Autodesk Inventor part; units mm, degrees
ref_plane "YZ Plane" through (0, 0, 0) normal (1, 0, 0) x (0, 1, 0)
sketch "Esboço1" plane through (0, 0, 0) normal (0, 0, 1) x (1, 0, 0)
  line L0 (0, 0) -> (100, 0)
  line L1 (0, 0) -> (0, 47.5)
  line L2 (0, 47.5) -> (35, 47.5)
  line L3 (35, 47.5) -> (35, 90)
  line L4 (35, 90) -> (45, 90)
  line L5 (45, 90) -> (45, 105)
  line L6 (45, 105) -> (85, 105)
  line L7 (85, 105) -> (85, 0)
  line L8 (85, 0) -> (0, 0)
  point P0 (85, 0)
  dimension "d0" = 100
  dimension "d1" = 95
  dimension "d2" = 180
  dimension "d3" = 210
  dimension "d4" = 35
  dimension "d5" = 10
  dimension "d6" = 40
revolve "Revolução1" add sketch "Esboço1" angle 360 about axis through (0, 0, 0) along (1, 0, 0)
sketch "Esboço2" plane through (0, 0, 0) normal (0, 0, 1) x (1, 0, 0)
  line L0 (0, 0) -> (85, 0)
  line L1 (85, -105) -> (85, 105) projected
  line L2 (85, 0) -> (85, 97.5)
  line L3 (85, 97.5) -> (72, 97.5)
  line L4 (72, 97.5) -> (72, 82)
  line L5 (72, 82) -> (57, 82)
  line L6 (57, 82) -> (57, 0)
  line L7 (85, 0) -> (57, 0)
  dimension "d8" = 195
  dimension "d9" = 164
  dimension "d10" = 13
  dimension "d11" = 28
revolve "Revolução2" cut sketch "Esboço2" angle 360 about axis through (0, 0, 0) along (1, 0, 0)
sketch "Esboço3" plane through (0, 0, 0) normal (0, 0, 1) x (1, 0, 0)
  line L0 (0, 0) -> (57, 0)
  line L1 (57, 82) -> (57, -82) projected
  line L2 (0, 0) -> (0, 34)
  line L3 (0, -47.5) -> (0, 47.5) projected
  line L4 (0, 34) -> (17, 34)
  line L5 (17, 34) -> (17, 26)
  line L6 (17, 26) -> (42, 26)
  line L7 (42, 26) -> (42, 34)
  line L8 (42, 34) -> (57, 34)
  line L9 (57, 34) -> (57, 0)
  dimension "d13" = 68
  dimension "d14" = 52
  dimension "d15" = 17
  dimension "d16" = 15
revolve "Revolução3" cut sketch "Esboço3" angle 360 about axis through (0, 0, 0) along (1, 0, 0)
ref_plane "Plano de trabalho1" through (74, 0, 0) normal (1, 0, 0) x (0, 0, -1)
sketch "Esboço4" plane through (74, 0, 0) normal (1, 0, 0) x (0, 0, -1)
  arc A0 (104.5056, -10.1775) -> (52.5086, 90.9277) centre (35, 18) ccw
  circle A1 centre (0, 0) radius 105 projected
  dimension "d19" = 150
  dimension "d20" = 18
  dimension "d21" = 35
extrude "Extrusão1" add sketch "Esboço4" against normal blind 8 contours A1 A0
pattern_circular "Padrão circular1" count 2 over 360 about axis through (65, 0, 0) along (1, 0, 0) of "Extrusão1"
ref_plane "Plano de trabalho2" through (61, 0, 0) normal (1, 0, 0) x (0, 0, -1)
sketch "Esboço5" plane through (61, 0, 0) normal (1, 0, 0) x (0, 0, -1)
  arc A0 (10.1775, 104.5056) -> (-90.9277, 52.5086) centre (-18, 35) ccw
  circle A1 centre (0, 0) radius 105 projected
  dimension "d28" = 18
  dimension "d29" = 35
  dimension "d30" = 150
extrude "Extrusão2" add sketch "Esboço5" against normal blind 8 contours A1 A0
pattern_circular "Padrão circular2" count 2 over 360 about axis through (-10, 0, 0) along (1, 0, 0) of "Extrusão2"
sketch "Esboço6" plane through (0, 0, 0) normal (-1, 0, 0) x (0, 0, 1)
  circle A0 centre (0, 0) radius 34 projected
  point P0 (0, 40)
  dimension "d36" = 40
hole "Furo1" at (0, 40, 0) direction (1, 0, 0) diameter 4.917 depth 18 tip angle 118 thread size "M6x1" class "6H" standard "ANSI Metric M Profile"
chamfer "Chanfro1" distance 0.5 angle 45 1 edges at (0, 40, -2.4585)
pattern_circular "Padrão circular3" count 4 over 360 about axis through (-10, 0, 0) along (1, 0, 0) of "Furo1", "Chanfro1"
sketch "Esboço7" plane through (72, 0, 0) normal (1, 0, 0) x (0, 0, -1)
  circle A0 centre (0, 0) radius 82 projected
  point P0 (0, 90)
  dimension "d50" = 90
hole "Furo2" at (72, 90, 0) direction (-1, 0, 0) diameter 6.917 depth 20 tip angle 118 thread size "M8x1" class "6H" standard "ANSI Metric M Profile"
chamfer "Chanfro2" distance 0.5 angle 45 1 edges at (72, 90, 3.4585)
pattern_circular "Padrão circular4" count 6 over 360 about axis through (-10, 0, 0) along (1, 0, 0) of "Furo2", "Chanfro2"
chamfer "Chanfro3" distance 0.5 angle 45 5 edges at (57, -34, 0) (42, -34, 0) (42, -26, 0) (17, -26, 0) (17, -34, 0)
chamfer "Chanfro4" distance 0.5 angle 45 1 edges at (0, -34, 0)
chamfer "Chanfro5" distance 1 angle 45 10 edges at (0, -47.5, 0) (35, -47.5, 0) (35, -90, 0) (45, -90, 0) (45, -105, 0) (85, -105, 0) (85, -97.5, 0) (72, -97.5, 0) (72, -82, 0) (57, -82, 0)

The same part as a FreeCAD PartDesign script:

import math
import FreeCAD as App
import Part
import Sketcher


def edges_at(feature, points):
    """Names of the edges that pass closest to the given points."""
    edges = feature.Shape.Edges
    near = lambda p: min(range(len(edges)), key=lambda i: edges[i].distToShape(Part.Vertex(*p))[0])
    return sorted({f"Edge{near(p) + 1}" for p in points})


def add_polygon(sketch, points):
    """Adds a closed chain of lines whose ends are joined by coincident constraints."""
    first, n = sketch.GeometryCount, len(points)
    for a, b in zip(points, points[1:] + points[:1]):
        sketch.addGeometry(Part.LineSegment(App.Vector(*a, 0), App.Vector(*b, 0)), False)
    for i in range(n):
        sketch.addConstraint(Sketcher.Constraint("Coincident", first + i, 2, first + (i + 1) % n, 1))

doc = App.newDocument("Part")
body = doc.addObject("PartDesign::Body", "Body")

# Sketch on XY plane
sketch1 = doc.addObject("Sketcher::SketchObject", "Sketch")
body.addObject(sketch1)
sketch1.AttachmentSupport = (doc.XY_Plane, [""])
sketch1.MapMode = "FlatFace"
add_polygon(sketch1, [(0, 48), (0, 0), (85, 0), (85, 105), (45, 105), (45, 90), (35, 90), (35, 48)])  # lines 0-7
sketch1.addConstraint([
    Sketcher.Constraint("Vertical", 0),
    Sketcher.Constraint("Horizontal", 1),
    Sketcher.Constraint("Vertical", 2),
    Sketcher.Constraint("Horizontal", 3),
    Sketcher.Constraint("Vertical", 4),
    Sketcher.Constraint("Horizontal", 5),
    Sketcher.Constraint("Vertical", 6),
    Sketcher.Constraint("Horizontal", 7),
    Sketcher.Constraint("Coincident", 0, 2, -1, 1),
    Sketcher.Constraint("DistanceX", 3, 2, 3, 1, 40.0),
    Sketcher.Constraint("DistanceX", 5, 2, 5, 1, 10.0),
    Sketcher.Constraint("DistanceX", 7, 2, 7, 1, 35.0),
    Sketcher.Constraint("DistanceY", 2, 1, 2, 2, 105.0),
    Sketcher.Constraint("DistanceY", 4, 2, 4, 1, 15.0),
    Sketcher.Constraint("DistanceY", 0, 2, 0, 1, 47.5),
])
revolution = doc.addObject("PartDesign::Revolution", "Revolution")
body.addObject(revolution)
revolution.Profile = sketch1
revolution.ReferenceAxis = (sketch1, ["H_Axis"])
revolution.Angle = 360

# Sketch on XY plane
sketch2 = doc.addObject("Sketcher::SketchObject", "Sketch001")
body.addObject(sketch2)
sketch2.AttachmentSupport = (doc.XY_Plane, [""])
sketch2.MapMode = "FlatFace"
add_polygon(sketch2, [(57, 82), (57, 0), (85, 0), (85, 98), (72, 98), (72, 82)])  # lines 0-5
sketch2.addConstraint([
    Sketcher.Constraint("Vertical", 0),
    Sketcher.Constraint("Horizontal", 1),
    Sketcher.Constraint("Vertical", 2),
    Sketcher.Constraint("Horizontal", 3),
    Sketcher.Constraint("Vertical", 4),
    Sketcher.Constraint("Horizontal", 5),
    Sketcher.Constraint("PointOnObject", 0, 2, -1),
    Sketcher.Constraint("DistanceX", 1, 1, 1, 2, 28.0),
    Sketcher.Constraint("DistanceX", 3, 2, 3, 1, 13.0),
    Sketcher.Constraint("DistanceY", 0, 2, 0, 1, 82.0),
    Sketcher.Constraint("DistanceY", 2, 1, 2, 2, 97.5),
    Sketcher.Constraint("DistanceX", -1, 1, 0, 2, 57.0),
])
groove = doc.addObject("PartDesign::Groove", "Groove")
body.addObject(groove)
groove.Profile = sketch2
groove.ReferenceAxis = (sketch2, ["H_Axis"])
groove.Angle = 360

# Sketch on XY plane
sketch3 = doc.addObject("Sketcher::SketchObject", "Sketch002")
body.addObject(sketch3)
sketch3.AttachmentSupport = (doc.XY_Plane, [""])
sketch3.MapMode = "FlatFace"
add_polygon(sketch3, [(0, 34), (0, 0), (57, 0), (57, 34), (42, 34), (42, 26), (17, 26), (17, 34)])  # lines 0-7
sketch3.addConstraint([
    Sketcher.Constraint("Vertical", 0),
    Sketcher.Constraint("Horizontal", 1),
    Sketcher.Constraint("Vertical", 2),
    Sketcher.Constraint("Horizontal", 3),
    Sketcher.Constraint("Vertical", 4),
    Sketcher.Constraint("Horizontal", 5),
    Sketcher.Constraint("Vertical", 6),
    Sketcher.Constraint("Horizontal", 7),
    Sketcher.Constraint("Coincident", 0, 2, -1, 1),
    Sketcher.Constraint("Horizontal", 3, 2, 6, 2),
    Sketcher.Constraint("DistanceX", 3, 2, 3, 1, 15.0),
    Sketcher.Constraint("DistanceX", 7, 2, 7, 1, 17.0),
    Sketcher.Constraint("DistanceX", 1, 1, 1, 2, 57.0),
    Sketcher.Constraint("DistanceY", 0, 2, 0, 1, 34.0),
    Sketcher.Constraint("DistanceY", 4, 2, 4, 1, 8.0),
])
groove2 = doc.addObject("PartDesign::Groove", "Groove001")
body.addObject(groove2)
groove2.Profile = sketch3
groove2.ReferenceAxis = (sketch3, ["H_Axis"])
groove2.Angle = 360

# Sketch on YZ plane
sketch4 = doc.addObject("Sketcher::SketchObject", "Sketch003")
body.addObject(sketch4)
sketch4.AttachmentSupport = (doc.YZ_Plane, [""])
sketch4.MapMode = "FlatFace"
sketch4.AttachmentOffset = App.Placement(App.Vector(0, 0, 74), App.Rotation())
sketch4.addGeometry([
    Part.ArcOfCircle(Part.Circle(App.Vector(0, 0, 0), App.Vector(0, 0, 1), 105), math.radians(-96), math.radians(-30)),
    Part.ArcOfCircle(Part.Circle(App.Vector(18, -35, 0), App.Vector(0, 0, 1), 75), math.radians(-112), math.radians(-14)),
], False)
sketch4.addConstraint([
    Sketcher.Constraint("Coincident", 0, 1, 1, 1),
    Sketcher.Constraint("Coincident", 1, 2, 0, 2),
    Sketcher.Constraint("Coincident", 0, 3, -1, 1),
    Sketcher.Constraint("Radius", 1, 75.0),
    Sketcher.Constraint("DistanceX", -1, 1, 1, 3, 18.0),
    Sketcher.Constraint("DistanceY", 1, 3, -1, 1, 35.0),
    Sketcher.Constraint("Radius", 0, 105.0),
])
pad1 = doc.addObject("PartDesign::Pad", "Pad")
body.addObject(pad1)
pad1.Profile = sketch4
pad1.Length = 8
pad1.Reversed = True
doc.recompute()

polarpattern = doc.addObject("PartDesign::PolarPattern", "PolarPattern")
body.addObject(polarpattern)
polarpattern.Originals = [pad1]
polarpattern.Axis = (doc.X_Axis, [""])
polarpattern.Angle = 360
polarpattern.Occurrences = 2
body.Tip = polarpattern

# Sketch on YZ plane
sketch5 = doc.addObject("Sketcher::SketchObject", "Sketch004")
body.addObject(sketch5)
sketch5.AttachmentSupport = (doc.YZ_Plane, [""])
sketch5.MapMode = "FlatFace"
sketch5.AttachmentOffset = App.Placement(App.Vector(0, 0, 61), App.Rotation())
sketch5.addGeometry([
    Part.ArcOfCircle(Part.Circle(App.Vector(0, 0, 0), App.Vector(0, 0, 1), 105), math.radians(-6), math.radians(60)),
    Part.ArcOfCircle(Part.Circle(App.Vector(35, 18, 0), App.Vector(0, 0, 1), 75), math.radians(-22), math.radians(76)),
], False)
sketch5.addConstraint([
    Sketcher.Constraint("Coincident", 0, 1, 1, 1),
    Sketcher.Constraint("Coincident", 1, 2, 0, 2),
    Sketcher.Constraint("Coincident", 0, 3, -1, 1),
    Sketcher.Constraint("Radius", 1, 75.0),
    Sketcher.Constraint("DistanceX", -1, 1, 1, 3, 35.0),
    Sketcher.Constraint("DistanceY", -1, 1, 1, 3, 18.0),
    Sketcher.Constraint("Radius", 0, 105.0),
])
pad2 = doc.addObject("PartDesign::Pad", "Pad001")
body.addObject(pad2)
pad2.Profile = sketch5
pad2.Length = 8
pad2.Reversed = True
doc.recompute()

polarpattern2 = doc.addObject("PartDesign::PolarPattern", "PolarPattern001")
body.addObject(polarpattern2)
polarpattern2.Originals = [pad2]
polarpattern2.Axis = (doc.X_Axis, [""])
polarpattern2.Angle = 360
polarpattern2.Occurrences = 2
body.Tip = polarpattern2

# Sketch on YZ plane
sketch6 = doc.addObject("Sketcher::SketchObject", "Sketch005")
body.addObject(sketch6)
sketch6.AttachmentSupport = (doc.YZ_Plane, [""])
sketch6.MapMode = "FlatFace"
sketch6.addGeometry(Part.Circle(App.Vector(40, 0, 0), App.Vector(0, 0, 1), 2.5), False)
sketch6.addConstraint([
    Sketcher.Constraint("PointOnObject", 0, 3, -1),
    Sketcher.Constraint("Diameter", 0, 4.917),
    Sketcher.Constraint("DistanceX", -1, 1, 0, 3, 40.0),
])
doc.recompute()
hole = doc.addObject("PartDesign::Hole", "Hole")
body.addObject(hole)
hole.Profile = sketch6
hole.ThreadType = "None"
hole.Diameter = 4.917
hole.DepthType = "Dimension"
hole.Depth = 18
hole.DrillPoint = "Angled"
hole.DrillPointAngle = 118
hole.Reversed = True
doc.recompute()

chamfer = doc.addObject("PartDesign::Chamfer", "Chamfer")
body.addObject(chamfer)
chamfer.Base = (hole, edges_at(hole, [(0, 40, -2.458)]))
chamfer.Size = 0.5
doc.recompute()

polarpattern3 = doc.addObject("PartDesign::PolarPattern", "PolarPattern002")
body.addObject(polarpattern3)
polarpattern3.Originals = [hole, chamfer]
polarpattern3.Axis = (doc.X_Axis, [""])
polarpattern3.Angle = 360
polarpattern3.Occurrences = 4
body.Tip = polarpattern3

# Sketch on YZ plane
sketch7 = doc.addObject("Sketcher::SketchObject", "Sketch006")
body.addObject(sketch7)
sketch7.AttachmentSupport = (doc.YZ_Plane, [""])
sketch7.MapMode = "FlatFace"
sketch7.AttachmentOffset = App.Placement(App.Vector(0, 0, 72), App.Rotation())
sketch7.addGeometry(Part.Circle(App.Vector(90, 0, 0), App.Vector(0, 0, 1), 3.5), False)
sketch7.addConstraint([
    Sketcher.Constraint("PointOnObject", 0, 3, -1),
    Sketcher.Constraint("Diameter", 0, 6.917),
    Sketcher.Constraint("DistanceX", -1, 1, 0, 3, 90.0),
])
doc.recompute()
hole2 = doc.addObject("PartDesign::Hole", "Hole001")
body.addObject(hole2)
hole2.Profile = sketch7
hole2.ThreadType = "None"
hole2.Diameter = 6.917
hole2.DepthType = "Dimension"
hole2.Depth = 20
hole2.DrillPoint = "Angled"
hole2.DrillPointAngle = 118
doc.recompute()

chamfer2 = doc.addObject("PartDesign::Chamfer", "Chamfer001")
body.addObject(chamfer2)
chamfer2.Base = (hole2, edges_at(hole2, [(72, 90, 3.458)]))
chamfer2.Size = 0.5
doc.recompute()

polarpattern4 = doc.addObject("PartDesign::PolarPattern", "PolarPattern003")
body.addObject(polarpattern4)
polarpattern4.Originals = [hole2, chamfer2]
polarpattern4.Axis = (doc.X_Axis, [""])
polarpattern4.Angle = 360
polarpattern4.Occurrences = 6
body.Tip = polarpattern4
doc.recompute()

chamfer3 = doc.addObject("PartDesign::Chamfer", "Chamfer002")
body.addObject(chamfer3)
chamfer3.Base = (polarpattern4, edges_at(polarpattern4, [
    (57, -34, 0),
    (42, -34, 0),
    (42, -26, 0),
    (17, -26, 0),
    (17, -34, 0),
]))
chamfer3.Size = 0.5
doc.recompute()

chamfer4 = doc.addObject("PartDesign::Chamfer", "Chamfer003")
body.addObject(chamfer4)
chamfer4.Base = (chamfer3, edges_at(chamfer3, [(0, -34, 0)]))
chamfer4.Size = 0.5
doc.recompute()

chamfer5 = doc.addObject("PartDesign::Chamfer", "Chamfer004")
body.addObject(chamfer5)
chamfer5.Base = (chamfer4, edges_at(chamfer4, [
    (0, -47.5, 0),
    (35, -47.5, 0),
    (35, -90, 0),
    (45, -90, 0),
    (45, -105, 0),
    (85, -105, 0),
    (85, -97.5, 0),
    (72, -97.5, 0),
    (72, -82, 0),
    (57, -82, 0),
]))
chamfer5.Size = 1

doc.recompute()
